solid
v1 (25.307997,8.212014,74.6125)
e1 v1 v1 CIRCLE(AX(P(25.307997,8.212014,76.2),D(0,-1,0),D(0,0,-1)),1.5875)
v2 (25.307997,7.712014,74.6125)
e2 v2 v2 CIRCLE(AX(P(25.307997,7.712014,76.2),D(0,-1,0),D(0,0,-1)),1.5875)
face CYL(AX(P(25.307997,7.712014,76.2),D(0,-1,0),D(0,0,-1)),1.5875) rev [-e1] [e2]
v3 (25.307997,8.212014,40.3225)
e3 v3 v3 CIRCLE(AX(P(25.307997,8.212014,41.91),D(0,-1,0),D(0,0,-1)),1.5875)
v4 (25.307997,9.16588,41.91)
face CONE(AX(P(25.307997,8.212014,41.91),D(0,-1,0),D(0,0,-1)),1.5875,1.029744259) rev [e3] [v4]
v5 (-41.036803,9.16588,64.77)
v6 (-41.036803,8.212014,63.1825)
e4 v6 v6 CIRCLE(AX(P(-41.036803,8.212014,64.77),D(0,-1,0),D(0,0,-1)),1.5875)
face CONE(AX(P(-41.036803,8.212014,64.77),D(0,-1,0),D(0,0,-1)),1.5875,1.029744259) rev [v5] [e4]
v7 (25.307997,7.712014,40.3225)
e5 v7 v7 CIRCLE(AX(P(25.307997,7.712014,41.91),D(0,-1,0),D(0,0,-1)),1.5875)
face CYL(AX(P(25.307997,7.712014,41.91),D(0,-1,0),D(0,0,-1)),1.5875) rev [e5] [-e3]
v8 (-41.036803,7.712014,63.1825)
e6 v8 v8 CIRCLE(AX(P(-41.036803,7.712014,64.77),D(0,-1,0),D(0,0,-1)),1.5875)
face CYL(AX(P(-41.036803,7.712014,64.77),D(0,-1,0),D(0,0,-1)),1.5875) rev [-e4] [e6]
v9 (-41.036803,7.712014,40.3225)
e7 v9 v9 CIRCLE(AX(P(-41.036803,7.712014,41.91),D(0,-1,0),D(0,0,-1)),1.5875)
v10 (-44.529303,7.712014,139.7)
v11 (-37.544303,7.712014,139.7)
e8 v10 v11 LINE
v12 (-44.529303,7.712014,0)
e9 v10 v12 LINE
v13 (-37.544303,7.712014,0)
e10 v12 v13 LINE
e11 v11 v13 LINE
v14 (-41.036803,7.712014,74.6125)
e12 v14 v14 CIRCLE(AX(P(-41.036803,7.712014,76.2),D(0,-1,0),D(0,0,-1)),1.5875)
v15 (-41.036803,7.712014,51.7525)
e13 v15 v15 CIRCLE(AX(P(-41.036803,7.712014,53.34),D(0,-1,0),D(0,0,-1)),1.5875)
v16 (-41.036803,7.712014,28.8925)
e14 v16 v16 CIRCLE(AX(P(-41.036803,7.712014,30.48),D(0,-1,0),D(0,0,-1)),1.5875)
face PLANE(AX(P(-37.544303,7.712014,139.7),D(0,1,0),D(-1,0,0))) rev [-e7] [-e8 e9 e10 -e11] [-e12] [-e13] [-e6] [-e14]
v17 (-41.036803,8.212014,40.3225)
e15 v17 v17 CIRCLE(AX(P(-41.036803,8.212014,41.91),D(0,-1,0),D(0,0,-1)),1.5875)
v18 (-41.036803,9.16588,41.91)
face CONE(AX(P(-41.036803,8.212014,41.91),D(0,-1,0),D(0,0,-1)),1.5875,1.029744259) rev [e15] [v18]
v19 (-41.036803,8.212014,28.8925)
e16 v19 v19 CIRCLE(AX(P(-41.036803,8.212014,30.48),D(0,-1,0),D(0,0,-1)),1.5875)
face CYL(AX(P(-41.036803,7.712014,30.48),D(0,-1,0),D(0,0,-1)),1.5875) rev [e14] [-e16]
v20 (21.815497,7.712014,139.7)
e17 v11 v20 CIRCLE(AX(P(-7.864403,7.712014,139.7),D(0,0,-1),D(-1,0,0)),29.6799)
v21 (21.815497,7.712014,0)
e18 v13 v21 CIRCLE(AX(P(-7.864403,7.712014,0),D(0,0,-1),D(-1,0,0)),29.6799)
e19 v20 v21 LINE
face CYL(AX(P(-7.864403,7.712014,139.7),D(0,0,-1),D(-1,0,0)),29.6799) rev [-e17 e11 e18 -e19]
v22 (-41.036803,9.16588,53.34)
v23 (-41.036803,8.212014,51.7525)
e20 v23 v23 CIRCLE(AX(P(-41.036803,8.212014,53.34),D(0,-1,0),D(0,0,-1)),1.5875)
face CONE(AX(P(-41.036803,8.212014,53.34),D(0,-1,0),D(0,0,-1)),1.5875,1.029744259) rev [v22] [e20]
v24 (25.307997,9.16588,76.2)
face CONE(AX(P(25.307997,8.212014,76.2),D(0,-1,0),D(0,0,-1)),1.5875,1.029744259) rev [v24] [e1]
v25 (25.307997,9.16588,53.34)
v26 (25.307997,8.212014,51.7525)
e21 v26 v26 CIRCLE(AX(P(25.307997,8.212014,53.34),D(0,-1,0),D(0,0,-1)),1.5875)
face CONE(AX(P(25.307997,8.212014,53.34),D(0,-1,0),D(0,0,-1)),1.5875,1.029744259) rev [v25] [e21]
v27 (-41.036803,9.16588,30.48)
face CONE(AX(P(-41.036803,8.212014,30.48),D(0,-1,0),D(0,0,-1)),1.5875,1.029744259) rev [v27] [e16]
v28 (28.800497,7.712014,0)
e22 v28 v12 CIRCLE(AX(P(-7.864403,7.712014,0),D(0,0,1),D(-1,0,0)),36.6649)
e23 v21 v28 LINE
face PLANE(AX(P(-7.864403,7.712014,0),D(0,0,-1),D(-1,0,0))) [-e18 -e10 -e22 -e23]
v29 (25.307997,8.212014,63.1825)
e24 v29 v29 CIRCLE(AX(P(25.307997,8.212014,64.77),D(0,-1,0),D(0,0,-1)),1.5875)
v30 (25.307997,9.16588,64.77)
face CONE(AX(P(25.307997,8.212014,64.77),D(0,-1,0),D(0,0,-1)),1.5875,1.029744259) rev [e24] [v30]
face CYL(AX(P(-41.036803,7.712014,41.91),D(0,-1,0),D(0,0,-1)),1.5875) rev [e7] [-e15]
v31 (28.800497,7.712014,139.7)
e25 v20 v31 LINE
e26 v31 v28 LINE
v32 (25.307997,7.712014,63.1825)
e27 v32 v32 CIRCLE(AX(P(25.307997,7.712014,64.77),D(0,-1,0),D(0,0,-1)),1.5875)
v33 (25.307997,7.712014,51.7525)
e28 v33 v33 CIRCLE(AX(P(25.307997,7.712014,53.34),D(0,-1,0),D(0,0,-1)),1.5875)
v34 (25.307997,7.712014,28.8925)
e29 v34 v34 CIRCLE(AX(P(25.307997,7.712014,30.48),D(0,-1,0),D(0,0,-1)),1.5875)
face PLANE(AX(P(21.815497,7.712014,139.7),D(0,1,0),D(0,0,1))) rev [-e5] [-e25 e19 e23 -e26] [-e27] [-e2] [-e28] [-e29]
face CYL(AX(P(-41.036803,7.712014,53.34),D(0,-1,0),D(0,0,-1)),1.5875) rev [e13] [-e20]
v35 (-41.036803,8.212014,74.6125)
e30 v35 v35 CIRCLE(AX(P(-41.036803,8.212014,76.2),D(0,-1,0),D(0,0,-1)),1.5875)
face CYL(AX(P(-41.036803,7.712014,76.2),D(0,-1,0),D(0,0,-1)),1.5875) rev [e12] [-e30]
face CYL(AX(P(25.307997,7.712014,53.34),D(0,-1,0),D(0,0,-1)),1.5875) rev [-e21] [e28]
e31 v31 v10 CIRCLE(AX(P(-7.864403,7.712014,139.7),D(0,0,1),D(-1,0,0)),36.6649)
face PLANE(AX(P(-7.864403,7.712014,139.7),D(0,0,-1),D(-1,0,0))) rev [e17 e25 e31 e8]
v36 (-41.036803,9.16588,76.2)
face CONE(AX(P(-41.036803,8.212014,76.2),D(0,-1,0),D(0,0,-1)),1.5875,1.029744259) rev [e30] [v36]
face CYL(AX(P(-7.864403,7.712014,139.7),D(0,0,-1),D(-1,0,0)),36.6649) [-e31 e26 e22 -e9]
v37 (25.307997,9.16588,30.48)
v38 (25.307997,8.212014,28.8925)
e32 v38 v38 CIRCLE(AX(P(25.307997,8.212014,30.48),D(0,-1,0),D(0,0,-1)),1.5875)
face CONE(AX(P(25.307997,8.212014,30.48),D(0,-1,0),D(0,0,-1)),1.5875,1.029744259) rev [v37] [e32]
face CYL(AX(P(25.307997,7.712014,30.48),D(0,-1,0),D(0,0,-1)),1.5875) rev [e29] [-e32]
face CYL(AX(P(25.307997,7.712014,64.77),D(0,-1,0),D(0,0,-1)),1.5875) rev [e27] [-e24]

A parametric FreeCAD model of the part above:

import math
import FreeCAD as App
import Part
import Sketcher
from FreeCAD import Vector
Q = App.Units.Quantity


def add_polygon(sketch, points):
    """Adds a closed chain of lines whose ends are joined by coincident constraints."""
    first, n = sketch.GeometryCount, len(points)
    for a, b in zip(points, points[1:] + points[:1]):
        sketch.addGeometry(Part.LineSegment(App.Vector(*a, 0), App.Vector(*b, 0)), False)
    for i in range(n):
        sketch.addConstraint(Sketcher.Constraint("Coincident", first + i, 2, first + (i + 1) % n, 1))

doc = App.newDocument("Part")
body = doc.addObject("PartDesign::Body", "Body")

# Sketch on XY plane
sketch1 = doc.addObject("Sketcher::SketchObject", "Sketch")
body.addObject(sketch1)
sketch1.AttachmentSupport = (doc.XY_Plane, [""])
sketch1.MapMode = "FlatFace"
sketch1.addGeometry([
    Part.LineSegment(Vector(-45, 8, 0), Vector(-38, 8, 0)),
    Part.ArcOfCircle(Part.Circle(Vector(-8, 8, 0), Vector(0, 0, 1), 30), math.radians(0), math.radians(180)),
    Part.LineSegment(Vector(22, 8, 0), Vector(29, 8, 0)),
    Part.ArcOfCircle(Part.Circle(Vector(-8, 8, 0), Vector(0, 0, 1), 37), math.radians(0), math.radians(180)),
], False)
sketch1.addConstraint([
    Sketcher.Constraint("Coincident", 0, 2, 1, 2),
    Sketcher.Constraint("Coincident", 1, 1, 2, 1),
    Sketcher.Constraint("Coincident", 2, 2, 3, 1),
    Sketcher.Constraint("Coincident", 3, 2, 0, 1),
    Sketcher.Constraint("Horizontal", 0),
    Sketcher.Constraint("Horizontal", 2),
    Sketcher.Constraint("Coincident", 3, 3, 1, 3),
    Sketcher.Constraint("Horizontal", 3, 3, 0, 2),
    Sketcher.Constraint("Horizontal", 0, 2, 1, 1),
    Sketcher.Constraint("Radius", 1, Q("1.1685 in")),
    Sketcher.Constraint("Radius", 3, Q("1.4435 in")),
    Sketcher.Constraint("DistanceX", 1, 3, -1, 1, 7.864403),
    Sketcher.Constraint("DistanceY", -1, 1, 1, 3, 7.712014),
])
pad1 = doc.addObject("PartDesign::Pad", "Pad")
body.addObject(pad1)
pad1.Profile = sketch1
pad1.Length = Q("5.5 in")

# Sketch on YZ plane
sketch2 = doc.addObject("Sketcher::SketchObject", "Sketch001")
body.addObject(sketch2)
sketch2.AttachmentSupport = (doc.YZ_Plane, [""])
sketch2.MapMode = "FlatFace"
sketch2.AttachmentOffset = App.Placement(Vector(0, 0, -41.036803), App.Rotation())
add_polygon(sketch2, [(9.2, 76.2), (7.7, 76.2), (7.7, 74.6), (8.2, 74.6)])  # lines 0-3
sketch2.addGeometry(Part.LineSegment(Vector(7.7, 76.2, 0), Vector(9.2, 76.2, 0)), True)  # axis
sketch2.addConstraint([
    Sketcher.Constraint("Horizontal", 0),
    Sketcher.Constraint("Vertical", 1),
    Sketcher.Constraint("Horizontal", 2),
    Sketcher.Constraint("Horizontal", 4),
    Sketcher.Constraint("Coincident", 4, 1, 0, 2),
    Sketcher.Constraint("Equal", 0, 4),
    Sketcher.Constraint("DistanceY", -1, 1, 0, 2, Q("3 in")),
    Sketcher.Constraint("Angle", 3, Q("59 deg")),
    Sketcher.Constraint("DistanceY", 1, 2, 1, 1, Q("0.0625 in")),
    Sketcher.Constraint("DistanceX", 2, 1, 2, 2, 0.5),
    Sketcher.Constraint("DistanceX", -1, 1, 3, 2, 9.16588),
])
groove = doc.addObject("PartDesign::Groove", "Groove")
body.addObject(groove)
groove.Profile = sketch2
groove.ReferenceAxis = (sketch2, ["Axis0"])
groove.Angle = 360
doc.recompute()

linearpattern = doc.addObject("PartDesign::LinearPattern", "LinearPattern")
body.addObject(linearpattern)
linearpattern.Originals = [groove]
linearpattern.Direction = (doc.X_Axis, [""])
linearpattern.Mode = "offset"
linearpattern.Offset = Q("2.612 in")
linearpattern.Occurrences = 2
body.Tip = linearpattern
doc.recompute()

linearpattern2 = doc.addObject("PartDesign::LinearPattern", "LinearPattern001")
body.addObject(linearpattern2)
linearpattern2.Originals = [groove]
linearpattern2.Direction = (doc.Z_Axis, [""])
linearpattern2.Mode = "offset"
linearpattern2.Offset = Q("0.45 in")
linearpattern2.Occurrences = 5
linearpattern2.Reversed = True
body.Tip = linearpattern2

# Sketch on YZ plane
sketch3 = doc.addObject("Sketcher::SketchObject", "Sketch002")
body.addObject(sketch3)
sketch3.AttachmentSupport = (doc.YZ_Plane, [""])
sketch3.MapMode = "FlatFace"
sketch3.AttachmentOffset = App.Placement(Vector(0, 0, 25.307997), App.Rotation())
add_polygon(sketch3, [(9.2, 64.8), (7.7, 64.8), (7.7, 63.2), (8.2, 63.2)])  # lines 0-3
sketch3.addGeometry(Part.LineSegment(Vector(7.7, 64.8, 0), Vector(9.2, 64.8, 0)), True)  # axis
sketch3.addConstraint([
    Sketcher.Constraint("Horizontal", 0),
    Sketcher.Constraint("Vertical", 1),
    Sketcher.Constraint("Horizontal", 2),
    Sketcher.Constraint("Horizontal", 4),
    Sketcher.Constraint("Coincident", 4, 1, 0, 2),
    Sketcher.Constraint("Equal", 0, 4),
    Sketcher.Constraint("Angle", 3, Q("59 deg")),
    Sketcher.Constraint("DistanceY", 1, 2, 1, 1, Q("0.0625 in")),
    Sketcher.Constraint("DistanceY", -1, 1, 0, 2, Q("2.55 in")),
    Sketcher.Constraint("DistanceX", 2, 1, 2, 2, 0.5),
    Sketcher.Constraint("DistanceX", -1, 1, 3, 2, 9.16588),
])
groove2 = doc.addObject("PartDesign::Groove", "Groove001")
body.addObject(groove2)
groove2.Profile = sketch3
groove2.ReferenceAxis = (sketch3, ["Axis0"])
groove2.Angle = 360

# Sketch on YZ plane
sketch4 = doc.addObject("Sketcher::SketchObject", "Sketch003")
body.addObject(sketch4)
sketch4.AttachmentSupport = (doc.YZ_Plane, [""])
sketch4.MapMode = "FlatFace"
sketch4.AttachmentOffset = App.Placement(Vector(0, 0, 25.307997), App.Rotation())
add_polygon(sketch4, [(9.2, 53.3), (7.7, 53.3), (7.7, 51.8), (8.2, 51.8)])  # lines 0-3
sketch4.addGeometry(Part.LineSegment(Vector(7.7, 53.3, 0), Vector(9.2, 53.3, 0)), True)  # axis
sketch4.addConstraint([
    Sketcher.Constraint("Horizontal", 0),
    Sketcher.Constraint("Vertical", 1),
    Sketcher.Constraint("Horizontal", 2),
    Sketcher.Constraint("Horizontal", 4),
    Sketcher.Constraint("Coincident", 4, 1, 0, 2),
    Sketcher.Constraint("Equal", 0, 4),
    Sketcher.Constraint("Angle", 3, Q("59 deg")),
    Sketcher.Constraint("DistanceY", -1, 1, 0, 2, Q("2.1 in")),
    Sketcher.Constraint("DistanceY", 1, 2, 1, 1, Q("0.0625 in")),
    Sketcher.Constraint("DistanceX", 2, 1, 2, 2, 0.5),
    Sketcher.Constraint("DistanceX", -1, 1, 3, 2, 9.16588),
])
groove3 = doc.addObject("PartDesign::Groove", "Groove002")
body.addObject(groove3)
groove3.Profile = sketch4
groove3.ReferenceAxis = (sketch4, ["Axis0"])
groove3.Angle = 360

# Sketch on YZ plane
sketch5 = doc.addObject("Sketcher::SketchObject", "Sketch004")
body.addObject(sketch5)
sketch5.AttachmentSupport = (doc.YZ_Plane, [""])
sketch5.MapMode = "FlatFace"
sketch5.AttachmentOffset = App.Placement(Vector(0, 0, 25.307997), App.Rotation())
add_polygon(sketch5, [(9.2, 41.9), (7.7, 41.9), (7.7, 40.3), (8.2, 40.3)])  # lines 0-3
sketch5.addGeometry(Part.LineSegment(Vector(7.7, 41.9, 0), Vector(9.2, 41.9, 0)), True)  # axis
sketch5.addConstraint([
    Sketcher.Constraint("Horizontal", 0),
    Sketcher.Constraint("Vertical", 1),
    Sketcher.Constraint("Horizontal", 2),
    Sketcher.Constraint("Horizontal", 4),
    Sketcher.Constraint("Coincident", 4, 1, 0, 2),
    Sketcher.Constraint("Equal", 0, 4),
    Sketcher.Constraint("Angle", 3, Q("59 deg")),
    Sketcher.Constraint("DistanceY", 1, 2, 1, 1, Q("0.0625 in")),
    Sketcher.Constraint("DistanceY", -1, 1, 0, 2, Q("1.65 in")),
    Sketcher.Constraint("DistanceX", 2, 1, 2, 2, 0.5),
    Sketcher.Constraint("DistanceX", -1, 1, 3, 2, 9.16588),
])
groove4 = doc.addObject("PartDesign::Groove", "Groove003")
body.addObject(groove4)
groove4.Profile = sketch5
groove4.ReferenceAxis = (sketch5, ["Axis0"])
groove4.Angle = 360

# Sketch on YZ plane
sketch6 = doc.addObject("Sketcher::SketchObject", "Sketch005")
body.addObject(sketch6)
sketch6.AttachmentSupport = (doc.YZ_Plane, [""])
sketch6.MapMode = "FlatFace"
sketch6.AttachmentOffset = App.Placement(Vector(0, 0, 25.307997), App.Rotation())
add_polygon(sketch6, [(9.2, 30.5), (7.7, 30.5), (7.7, 28.9), (8.2, 28.9)])  # lines 0-3
sketch6.addGeometry(Part.LineSegment(Vector(7.7, 30.5, 0), Vector(9.2, 30.5, 0)), True)  # axis
sketch6.addConstraint([
    Sketcher.Constraint("Horizontal", 0),
    Sketcher.Constraint("Vertical", 1),
    Sketcher.Constraint("Horizontal", 2),
    Sketcher.Constraint("Horizontal", 4),
    Sketcher.Constraint("Coincident", 4, 1, 0, 2),
    Sketcher.Constraint("Equal", 0, 4),
    Sketcher.Constraint("Angle", 3, Q("59 deg")),
    Sketcher.Constraint("DistanceY", -1, 1, 0, 2, Q("1.2 in")),
    Sketcher.Constraint("DistanceY", 1, 2, 1, 1, Q("0.0625 in")),
    Sketcher.Constraint("DistanceX", 2, 1, 2, 2, 0.5),
    Sketcher.Constraint("DistanceX", -1, 1, 3, 2, 9.16588),
])
groove5 = doc.addObject("PartDesign::Groove", "Groove004")
body.addObject(groove5)
groove5.Profile = sketch6
groove5.ReferenceAxis = (sketch6, ["Axis0"])
groove5.Angle = 360

doc.recompute()
